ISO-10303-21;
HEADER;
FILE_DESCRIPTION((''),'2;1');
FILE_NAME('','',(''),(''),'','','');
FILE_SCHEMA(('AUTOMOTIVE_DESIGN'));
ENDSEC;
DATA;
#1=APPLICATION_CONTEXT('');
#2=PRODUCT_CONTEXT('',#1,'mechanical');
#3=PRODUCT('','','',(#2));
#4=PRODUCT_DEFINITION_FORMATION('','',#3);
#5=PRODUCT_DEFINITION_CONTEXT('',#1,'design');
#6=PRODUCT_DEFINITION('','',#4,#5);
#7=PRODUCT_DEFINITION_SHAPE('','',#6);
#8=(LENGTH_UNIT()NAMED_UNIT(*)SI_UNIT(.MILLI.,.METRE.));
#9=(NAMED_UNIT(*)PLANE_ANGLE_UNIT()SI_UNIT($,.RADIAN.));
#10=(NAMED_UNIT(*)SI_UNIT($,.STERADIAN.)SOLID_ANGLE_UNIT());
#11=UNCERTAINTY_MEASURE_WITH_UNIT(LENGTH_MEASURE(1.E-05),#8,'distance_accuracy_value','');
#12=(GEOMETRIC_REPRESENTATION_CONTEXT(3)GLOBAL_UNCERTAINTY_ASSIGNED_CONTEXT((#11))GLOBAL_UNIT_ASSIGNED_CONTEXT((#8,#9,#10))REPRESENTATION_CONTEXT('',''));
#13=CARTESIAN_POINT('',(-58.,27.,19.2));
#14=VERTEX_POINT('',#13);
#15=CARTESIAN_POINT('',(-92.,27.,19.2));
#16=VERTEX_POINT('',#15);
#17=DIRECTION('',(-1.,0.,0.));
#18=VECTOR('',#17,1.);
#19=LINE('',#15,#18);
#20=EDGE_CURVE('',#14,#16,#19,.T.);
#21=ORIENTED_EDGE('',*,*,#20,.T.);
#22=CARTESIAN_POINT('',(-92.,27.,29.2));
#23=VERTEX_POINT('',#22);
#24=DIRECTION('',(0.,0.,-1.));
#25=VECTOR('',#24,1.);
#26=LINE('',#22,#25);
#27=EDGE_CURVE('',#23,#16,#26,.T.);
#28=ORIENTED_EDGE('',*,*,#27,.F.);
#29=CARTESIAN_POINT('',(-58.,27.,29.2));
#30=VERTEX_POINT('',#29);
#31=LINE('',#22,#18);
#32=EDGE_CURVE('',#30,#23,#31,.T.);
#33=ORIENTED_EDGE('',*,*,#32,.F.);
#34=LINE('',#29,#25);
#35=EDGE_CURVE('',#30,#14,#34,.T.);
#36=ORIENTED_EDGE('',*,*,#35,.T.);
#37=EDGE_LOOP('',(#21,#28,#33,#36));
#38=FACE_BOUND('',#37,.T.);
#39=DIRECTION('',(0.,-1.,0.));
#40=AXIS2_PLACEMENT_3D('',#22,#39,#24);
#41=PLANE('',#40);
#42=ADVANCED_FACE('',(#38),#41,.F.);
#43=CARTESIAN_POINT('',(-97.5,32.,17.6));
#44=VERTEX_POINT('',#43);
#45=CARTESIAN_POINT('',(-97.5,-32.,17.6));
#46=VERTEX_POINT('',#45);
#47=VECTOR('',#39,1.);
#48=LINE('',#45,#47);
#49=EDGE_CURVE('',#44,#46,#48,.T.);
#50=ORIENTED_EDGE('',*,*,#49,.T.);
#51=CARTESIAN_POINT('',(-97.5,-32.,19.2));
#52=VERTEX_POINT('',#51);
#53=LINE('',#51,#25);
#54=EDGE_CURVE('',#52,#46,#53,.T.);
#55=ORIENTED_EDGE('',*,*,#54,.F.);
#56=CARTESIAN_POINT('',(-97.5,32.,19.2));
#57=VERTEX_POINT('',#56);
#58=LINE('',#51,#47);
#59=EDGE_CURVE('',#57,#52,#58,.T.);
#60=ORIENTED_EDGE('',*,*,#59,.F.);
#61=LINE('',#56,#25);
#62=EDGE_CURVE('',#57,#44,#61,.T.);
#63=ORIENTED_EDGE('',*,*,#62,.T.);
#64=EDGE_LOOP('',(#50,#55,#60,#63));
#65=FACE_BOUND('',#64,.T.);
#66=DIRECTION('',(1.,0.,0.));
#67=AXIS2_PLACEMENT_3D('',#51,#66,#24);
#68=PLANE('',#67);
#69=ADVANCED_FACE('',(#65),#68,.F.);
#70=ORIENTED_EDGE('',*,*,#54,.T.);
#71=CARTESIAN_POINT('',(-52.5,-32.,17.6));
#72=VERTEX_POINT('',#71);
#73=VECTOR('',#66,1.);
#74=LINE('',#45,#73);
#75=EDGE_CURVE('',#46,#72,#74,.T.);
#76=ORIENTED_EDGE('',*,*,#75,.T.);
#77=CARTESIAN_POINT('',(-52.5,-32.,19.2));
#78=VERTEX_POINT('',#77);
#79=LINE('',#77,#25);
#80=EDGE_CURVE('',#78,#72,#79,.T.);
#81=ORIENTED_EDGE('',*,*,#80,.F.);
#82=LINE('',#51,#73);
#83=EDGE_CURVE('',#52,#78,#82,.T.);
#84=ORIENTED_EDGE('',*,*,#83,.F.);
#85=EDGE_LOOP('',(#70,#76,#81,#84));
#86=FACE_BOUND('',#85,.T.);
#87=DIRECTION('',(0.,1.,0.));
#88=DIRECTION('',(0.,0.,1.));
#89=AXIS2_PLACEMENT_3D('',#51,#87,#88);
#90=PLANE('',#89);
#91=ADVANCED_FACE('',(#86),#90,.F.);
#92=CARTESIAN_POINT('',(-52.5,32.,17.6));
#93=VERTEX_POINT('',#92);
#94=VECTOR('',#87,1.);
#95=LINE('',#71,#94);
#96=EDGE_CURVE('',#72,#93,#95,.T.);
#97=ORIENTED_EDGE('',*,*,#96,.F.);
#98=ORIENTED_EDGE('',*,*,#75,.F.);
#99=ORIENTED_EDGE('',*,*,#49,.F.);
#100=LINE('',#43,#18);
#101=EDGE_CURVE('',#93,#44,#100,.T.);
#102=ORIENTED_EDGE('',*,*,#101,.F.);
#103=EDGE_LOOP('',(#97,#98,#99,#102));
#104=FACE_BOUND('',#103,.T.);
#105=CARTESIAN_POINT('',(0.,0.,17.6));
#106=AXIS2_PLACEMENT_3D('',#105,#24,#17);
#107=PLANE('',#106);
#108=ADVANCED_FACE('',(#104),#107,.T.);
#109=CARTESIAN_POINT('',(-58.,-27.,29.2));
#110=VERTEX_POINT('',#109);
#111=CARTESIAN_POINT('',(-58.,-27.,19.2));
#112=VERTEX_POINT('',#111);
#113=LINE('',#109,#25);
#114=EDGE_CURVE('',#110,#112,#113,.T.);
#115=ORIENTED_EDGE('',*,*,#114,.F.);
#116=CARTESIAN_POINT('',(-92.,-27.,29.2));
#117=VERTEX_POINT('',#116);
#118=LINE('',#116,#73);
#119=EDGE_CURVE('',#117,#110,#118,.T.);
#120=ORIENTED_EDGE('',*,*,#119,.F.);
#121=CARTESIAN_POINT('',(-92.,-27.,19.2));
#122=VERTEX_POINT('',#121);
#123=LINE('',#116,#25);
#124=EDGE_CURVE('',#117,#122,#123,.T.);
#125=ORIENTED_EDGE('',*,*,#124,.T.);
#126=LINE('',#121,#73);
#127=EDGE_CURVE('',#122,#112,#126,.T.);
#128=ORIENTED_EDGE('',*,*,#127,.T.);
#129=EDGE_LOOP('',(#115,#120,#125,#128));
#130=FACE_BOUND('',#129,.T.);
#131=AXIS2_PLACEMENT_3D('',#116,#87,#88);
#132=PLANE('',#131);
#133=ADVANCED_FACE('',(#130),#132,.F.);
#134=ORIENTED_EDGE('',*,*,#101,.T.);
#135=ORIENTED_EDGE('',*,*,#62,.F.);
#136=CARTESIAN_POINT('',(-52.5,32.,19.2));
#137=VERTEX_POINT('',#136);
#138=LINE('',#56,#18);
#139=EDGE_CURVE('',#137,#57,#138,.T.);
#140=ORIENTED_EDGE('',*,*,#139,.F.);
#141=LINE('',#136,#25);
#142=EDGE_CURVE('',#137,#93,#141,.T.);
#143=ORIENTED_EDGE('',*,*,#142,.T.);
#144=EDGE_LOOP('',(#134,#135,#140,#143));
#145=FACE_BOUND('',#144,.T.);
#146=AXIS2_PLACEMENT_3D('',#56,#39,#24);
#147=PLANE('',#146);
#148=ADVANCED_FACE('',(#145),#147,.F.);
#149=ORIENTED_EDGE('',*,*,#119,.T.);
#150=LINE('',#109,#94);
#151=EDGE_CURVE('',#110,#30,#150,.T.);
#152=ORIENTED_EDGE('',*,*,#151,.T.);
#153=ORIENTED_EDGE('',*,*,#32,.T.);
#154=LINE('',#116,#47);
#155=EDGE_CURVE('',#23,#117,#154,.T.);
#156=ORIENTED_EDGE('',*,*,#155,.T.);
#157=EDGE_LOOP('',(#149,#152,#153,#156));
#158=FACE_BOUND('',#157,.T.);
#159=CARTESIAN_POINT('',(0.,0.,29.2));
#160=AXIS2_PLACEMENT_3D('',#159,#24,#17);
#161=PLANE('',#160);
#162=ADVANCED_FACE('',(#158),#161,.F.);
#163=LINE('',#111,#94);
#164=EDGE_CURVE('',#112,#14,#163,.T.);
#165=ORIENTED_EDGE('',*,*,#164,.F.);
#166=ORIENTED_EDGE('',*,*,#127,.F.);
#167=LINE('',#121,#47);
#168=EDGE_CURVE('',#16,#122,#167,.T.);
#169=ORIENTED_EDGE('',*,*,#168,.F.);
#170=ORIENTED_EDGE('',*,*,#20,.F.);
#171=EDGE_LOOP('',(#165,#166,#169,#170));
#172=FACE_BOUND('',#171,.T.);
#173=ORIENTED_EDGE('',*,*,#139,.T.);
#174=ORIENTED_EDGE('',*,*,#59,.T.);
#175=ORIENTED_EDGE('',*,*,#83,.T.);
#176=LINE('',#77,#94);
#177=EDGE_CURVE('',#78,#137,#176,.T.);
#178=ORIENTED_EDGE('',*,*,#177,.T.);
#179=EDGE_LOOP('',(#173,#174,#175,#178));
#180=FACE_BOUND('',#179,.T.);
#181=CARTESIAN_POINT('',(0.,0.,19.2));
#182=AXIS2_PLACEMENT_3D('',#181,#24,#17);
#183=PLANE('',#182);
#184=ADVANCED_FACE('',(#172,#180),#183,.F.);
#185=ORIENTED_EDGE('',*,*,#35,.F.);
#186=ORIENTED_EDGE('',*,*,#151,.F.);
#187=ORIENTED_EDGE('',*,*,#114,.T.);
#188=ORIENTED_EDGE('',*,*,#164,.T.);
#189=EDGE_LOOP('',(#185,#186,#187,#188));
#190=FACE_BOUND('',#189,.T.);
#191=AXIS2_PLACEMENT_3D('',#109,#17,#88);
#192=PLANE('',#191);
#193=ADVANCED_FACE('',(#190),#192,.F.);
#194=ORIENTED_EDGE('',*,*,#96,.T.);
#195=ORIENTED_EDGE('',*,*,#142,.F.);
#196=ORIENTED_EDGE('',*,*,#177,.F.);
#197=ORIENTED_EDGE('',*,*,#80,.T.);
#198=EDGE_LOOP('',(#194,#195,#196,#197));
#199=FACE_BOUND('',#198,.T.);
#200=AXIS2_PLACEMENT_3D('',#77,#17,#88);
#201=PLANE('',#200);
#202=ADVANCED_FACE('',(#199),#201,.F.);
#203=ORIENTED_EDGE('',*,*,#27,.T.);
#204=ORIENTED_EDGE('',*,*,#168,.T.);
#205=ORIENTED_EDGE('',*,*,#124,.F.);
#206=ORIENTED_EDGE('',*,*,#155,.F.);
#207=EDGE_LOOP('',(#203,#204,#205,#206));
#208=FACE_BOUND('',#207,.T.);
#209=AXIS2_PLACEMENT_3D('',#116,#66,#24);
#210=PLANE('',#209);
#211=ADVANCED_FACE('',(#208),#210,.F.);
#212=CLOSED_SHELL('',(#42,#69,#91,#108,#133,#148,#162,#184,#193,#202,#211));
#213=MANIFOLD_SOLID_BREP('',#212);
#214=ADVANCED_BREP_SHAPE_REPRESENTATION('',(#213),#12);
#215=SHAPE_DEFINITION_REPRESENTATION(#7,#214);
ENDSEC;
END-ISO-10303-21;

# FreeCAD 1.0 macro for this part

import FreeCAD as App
import Part
import Sketcher

V = App.Vector


def add_polygon(sketch, points):
    """Adds a closed chain of lines whose ends are joined by coincident constraints."""
    first, n = sketch.GeometryCount, len(points)
    for a, b in zip(points, points[1:] + points[:1]):
        sketch.addGeometry(Part.LineSegment(App.Vector(*a, 0), App.Vector(*b, 0)), False)
    for i in range(n):
        sketch.addConstraint(Sketcher.Constraint("Coincident", first + i, 2, first + (i + 1) % n, 1))

doc = App.newDocument("Part")
body = doc.addObject("PartDesign::Body", "Body")

# Sketch on XY plane
sketch1 = body.newObject("Sketcher::SketchObject", "Sketch")
sketch1.AttachmentSupport = (doc.getObject("XY_Plane"), [""])
sketch1.MapMode = "FlatFace"
sketch1.AttachmentOffset = App.Placement(V(0, 0, 18.4), App.Rotation())
add_polygon(sketch1, [(-98, 32), (-98, -32), (-52, -32), (-52, 32)])  # lines 0-3
sketch1.addConstraint([
    Sketcher.Constraint("Vertical", 0),
    Sketcher.Constraint("Horizontal", 1),
    Sketcher.Constraint("Vertical", 2),
    Sketcher.Constraint("Horizontal", 3),
    Sketcher.Constraint("DistanceX", 1, 1, 1, 2, 45.0),
    Sketcher.Constraint("DistanceY", 0, 2, 0, 1, 64.0),
    Sketcher.Constraint("DistanceY", 0, 2, -1, 1, 32.0),
    Sketcher.Constraint("DistanceX", 0, 2, -1, 1, 97.5),
])
pad1 = body.newObject("PartDesign::Pad", "Pad")
pad1.Profile = sketch1
pad1.Length = 1.6
pad1.Midplane = True

# Sketch on XY plane
sketch2 = body.newObject("Sketcher::SketchObject", "Sketch001")
sketch2.AttachmentSupport = (doc.getObject("XY_Plane"), [""])
sketch2.MapMode = "FlatFace"
sketch2.AttachmentOffset = App.Placement(V(0, 0, 24.2), App.Rotation())
add_polygon(sketch2, [(-92, 27), (-92, -27), (-58, -27), (-58, 27)])  # lines 0-3
sketch2.addConstraint([
    Sketcher.Constraint("Vertical", 0),
    Sketcher.Constraint("Horizontal", 1),
    Sketcher.Constraint("Vertical", 2),
    Sketcher.Constraint("Horizontal", 3),
    Sketcher.Constraint("DistanceX", 1, 1, 1, 2, 34.0),
    Sketcher.Constraint("DistanceY", 0, 2, 0, 1, 54.0),
    Sketcher.Constraint("DistanceX", 0, 2, -1, 1, 92.0),
    Sketcher.Constraint("DistanceY", 0, 2, -1, 1, 27.0),
])
pad2 = body.newObject("PartDesign::Pad", "Pad001")
pad2.Profile = sketch2
pad2.Length = 10
pad2.Midplane = True

doc.recompute()
